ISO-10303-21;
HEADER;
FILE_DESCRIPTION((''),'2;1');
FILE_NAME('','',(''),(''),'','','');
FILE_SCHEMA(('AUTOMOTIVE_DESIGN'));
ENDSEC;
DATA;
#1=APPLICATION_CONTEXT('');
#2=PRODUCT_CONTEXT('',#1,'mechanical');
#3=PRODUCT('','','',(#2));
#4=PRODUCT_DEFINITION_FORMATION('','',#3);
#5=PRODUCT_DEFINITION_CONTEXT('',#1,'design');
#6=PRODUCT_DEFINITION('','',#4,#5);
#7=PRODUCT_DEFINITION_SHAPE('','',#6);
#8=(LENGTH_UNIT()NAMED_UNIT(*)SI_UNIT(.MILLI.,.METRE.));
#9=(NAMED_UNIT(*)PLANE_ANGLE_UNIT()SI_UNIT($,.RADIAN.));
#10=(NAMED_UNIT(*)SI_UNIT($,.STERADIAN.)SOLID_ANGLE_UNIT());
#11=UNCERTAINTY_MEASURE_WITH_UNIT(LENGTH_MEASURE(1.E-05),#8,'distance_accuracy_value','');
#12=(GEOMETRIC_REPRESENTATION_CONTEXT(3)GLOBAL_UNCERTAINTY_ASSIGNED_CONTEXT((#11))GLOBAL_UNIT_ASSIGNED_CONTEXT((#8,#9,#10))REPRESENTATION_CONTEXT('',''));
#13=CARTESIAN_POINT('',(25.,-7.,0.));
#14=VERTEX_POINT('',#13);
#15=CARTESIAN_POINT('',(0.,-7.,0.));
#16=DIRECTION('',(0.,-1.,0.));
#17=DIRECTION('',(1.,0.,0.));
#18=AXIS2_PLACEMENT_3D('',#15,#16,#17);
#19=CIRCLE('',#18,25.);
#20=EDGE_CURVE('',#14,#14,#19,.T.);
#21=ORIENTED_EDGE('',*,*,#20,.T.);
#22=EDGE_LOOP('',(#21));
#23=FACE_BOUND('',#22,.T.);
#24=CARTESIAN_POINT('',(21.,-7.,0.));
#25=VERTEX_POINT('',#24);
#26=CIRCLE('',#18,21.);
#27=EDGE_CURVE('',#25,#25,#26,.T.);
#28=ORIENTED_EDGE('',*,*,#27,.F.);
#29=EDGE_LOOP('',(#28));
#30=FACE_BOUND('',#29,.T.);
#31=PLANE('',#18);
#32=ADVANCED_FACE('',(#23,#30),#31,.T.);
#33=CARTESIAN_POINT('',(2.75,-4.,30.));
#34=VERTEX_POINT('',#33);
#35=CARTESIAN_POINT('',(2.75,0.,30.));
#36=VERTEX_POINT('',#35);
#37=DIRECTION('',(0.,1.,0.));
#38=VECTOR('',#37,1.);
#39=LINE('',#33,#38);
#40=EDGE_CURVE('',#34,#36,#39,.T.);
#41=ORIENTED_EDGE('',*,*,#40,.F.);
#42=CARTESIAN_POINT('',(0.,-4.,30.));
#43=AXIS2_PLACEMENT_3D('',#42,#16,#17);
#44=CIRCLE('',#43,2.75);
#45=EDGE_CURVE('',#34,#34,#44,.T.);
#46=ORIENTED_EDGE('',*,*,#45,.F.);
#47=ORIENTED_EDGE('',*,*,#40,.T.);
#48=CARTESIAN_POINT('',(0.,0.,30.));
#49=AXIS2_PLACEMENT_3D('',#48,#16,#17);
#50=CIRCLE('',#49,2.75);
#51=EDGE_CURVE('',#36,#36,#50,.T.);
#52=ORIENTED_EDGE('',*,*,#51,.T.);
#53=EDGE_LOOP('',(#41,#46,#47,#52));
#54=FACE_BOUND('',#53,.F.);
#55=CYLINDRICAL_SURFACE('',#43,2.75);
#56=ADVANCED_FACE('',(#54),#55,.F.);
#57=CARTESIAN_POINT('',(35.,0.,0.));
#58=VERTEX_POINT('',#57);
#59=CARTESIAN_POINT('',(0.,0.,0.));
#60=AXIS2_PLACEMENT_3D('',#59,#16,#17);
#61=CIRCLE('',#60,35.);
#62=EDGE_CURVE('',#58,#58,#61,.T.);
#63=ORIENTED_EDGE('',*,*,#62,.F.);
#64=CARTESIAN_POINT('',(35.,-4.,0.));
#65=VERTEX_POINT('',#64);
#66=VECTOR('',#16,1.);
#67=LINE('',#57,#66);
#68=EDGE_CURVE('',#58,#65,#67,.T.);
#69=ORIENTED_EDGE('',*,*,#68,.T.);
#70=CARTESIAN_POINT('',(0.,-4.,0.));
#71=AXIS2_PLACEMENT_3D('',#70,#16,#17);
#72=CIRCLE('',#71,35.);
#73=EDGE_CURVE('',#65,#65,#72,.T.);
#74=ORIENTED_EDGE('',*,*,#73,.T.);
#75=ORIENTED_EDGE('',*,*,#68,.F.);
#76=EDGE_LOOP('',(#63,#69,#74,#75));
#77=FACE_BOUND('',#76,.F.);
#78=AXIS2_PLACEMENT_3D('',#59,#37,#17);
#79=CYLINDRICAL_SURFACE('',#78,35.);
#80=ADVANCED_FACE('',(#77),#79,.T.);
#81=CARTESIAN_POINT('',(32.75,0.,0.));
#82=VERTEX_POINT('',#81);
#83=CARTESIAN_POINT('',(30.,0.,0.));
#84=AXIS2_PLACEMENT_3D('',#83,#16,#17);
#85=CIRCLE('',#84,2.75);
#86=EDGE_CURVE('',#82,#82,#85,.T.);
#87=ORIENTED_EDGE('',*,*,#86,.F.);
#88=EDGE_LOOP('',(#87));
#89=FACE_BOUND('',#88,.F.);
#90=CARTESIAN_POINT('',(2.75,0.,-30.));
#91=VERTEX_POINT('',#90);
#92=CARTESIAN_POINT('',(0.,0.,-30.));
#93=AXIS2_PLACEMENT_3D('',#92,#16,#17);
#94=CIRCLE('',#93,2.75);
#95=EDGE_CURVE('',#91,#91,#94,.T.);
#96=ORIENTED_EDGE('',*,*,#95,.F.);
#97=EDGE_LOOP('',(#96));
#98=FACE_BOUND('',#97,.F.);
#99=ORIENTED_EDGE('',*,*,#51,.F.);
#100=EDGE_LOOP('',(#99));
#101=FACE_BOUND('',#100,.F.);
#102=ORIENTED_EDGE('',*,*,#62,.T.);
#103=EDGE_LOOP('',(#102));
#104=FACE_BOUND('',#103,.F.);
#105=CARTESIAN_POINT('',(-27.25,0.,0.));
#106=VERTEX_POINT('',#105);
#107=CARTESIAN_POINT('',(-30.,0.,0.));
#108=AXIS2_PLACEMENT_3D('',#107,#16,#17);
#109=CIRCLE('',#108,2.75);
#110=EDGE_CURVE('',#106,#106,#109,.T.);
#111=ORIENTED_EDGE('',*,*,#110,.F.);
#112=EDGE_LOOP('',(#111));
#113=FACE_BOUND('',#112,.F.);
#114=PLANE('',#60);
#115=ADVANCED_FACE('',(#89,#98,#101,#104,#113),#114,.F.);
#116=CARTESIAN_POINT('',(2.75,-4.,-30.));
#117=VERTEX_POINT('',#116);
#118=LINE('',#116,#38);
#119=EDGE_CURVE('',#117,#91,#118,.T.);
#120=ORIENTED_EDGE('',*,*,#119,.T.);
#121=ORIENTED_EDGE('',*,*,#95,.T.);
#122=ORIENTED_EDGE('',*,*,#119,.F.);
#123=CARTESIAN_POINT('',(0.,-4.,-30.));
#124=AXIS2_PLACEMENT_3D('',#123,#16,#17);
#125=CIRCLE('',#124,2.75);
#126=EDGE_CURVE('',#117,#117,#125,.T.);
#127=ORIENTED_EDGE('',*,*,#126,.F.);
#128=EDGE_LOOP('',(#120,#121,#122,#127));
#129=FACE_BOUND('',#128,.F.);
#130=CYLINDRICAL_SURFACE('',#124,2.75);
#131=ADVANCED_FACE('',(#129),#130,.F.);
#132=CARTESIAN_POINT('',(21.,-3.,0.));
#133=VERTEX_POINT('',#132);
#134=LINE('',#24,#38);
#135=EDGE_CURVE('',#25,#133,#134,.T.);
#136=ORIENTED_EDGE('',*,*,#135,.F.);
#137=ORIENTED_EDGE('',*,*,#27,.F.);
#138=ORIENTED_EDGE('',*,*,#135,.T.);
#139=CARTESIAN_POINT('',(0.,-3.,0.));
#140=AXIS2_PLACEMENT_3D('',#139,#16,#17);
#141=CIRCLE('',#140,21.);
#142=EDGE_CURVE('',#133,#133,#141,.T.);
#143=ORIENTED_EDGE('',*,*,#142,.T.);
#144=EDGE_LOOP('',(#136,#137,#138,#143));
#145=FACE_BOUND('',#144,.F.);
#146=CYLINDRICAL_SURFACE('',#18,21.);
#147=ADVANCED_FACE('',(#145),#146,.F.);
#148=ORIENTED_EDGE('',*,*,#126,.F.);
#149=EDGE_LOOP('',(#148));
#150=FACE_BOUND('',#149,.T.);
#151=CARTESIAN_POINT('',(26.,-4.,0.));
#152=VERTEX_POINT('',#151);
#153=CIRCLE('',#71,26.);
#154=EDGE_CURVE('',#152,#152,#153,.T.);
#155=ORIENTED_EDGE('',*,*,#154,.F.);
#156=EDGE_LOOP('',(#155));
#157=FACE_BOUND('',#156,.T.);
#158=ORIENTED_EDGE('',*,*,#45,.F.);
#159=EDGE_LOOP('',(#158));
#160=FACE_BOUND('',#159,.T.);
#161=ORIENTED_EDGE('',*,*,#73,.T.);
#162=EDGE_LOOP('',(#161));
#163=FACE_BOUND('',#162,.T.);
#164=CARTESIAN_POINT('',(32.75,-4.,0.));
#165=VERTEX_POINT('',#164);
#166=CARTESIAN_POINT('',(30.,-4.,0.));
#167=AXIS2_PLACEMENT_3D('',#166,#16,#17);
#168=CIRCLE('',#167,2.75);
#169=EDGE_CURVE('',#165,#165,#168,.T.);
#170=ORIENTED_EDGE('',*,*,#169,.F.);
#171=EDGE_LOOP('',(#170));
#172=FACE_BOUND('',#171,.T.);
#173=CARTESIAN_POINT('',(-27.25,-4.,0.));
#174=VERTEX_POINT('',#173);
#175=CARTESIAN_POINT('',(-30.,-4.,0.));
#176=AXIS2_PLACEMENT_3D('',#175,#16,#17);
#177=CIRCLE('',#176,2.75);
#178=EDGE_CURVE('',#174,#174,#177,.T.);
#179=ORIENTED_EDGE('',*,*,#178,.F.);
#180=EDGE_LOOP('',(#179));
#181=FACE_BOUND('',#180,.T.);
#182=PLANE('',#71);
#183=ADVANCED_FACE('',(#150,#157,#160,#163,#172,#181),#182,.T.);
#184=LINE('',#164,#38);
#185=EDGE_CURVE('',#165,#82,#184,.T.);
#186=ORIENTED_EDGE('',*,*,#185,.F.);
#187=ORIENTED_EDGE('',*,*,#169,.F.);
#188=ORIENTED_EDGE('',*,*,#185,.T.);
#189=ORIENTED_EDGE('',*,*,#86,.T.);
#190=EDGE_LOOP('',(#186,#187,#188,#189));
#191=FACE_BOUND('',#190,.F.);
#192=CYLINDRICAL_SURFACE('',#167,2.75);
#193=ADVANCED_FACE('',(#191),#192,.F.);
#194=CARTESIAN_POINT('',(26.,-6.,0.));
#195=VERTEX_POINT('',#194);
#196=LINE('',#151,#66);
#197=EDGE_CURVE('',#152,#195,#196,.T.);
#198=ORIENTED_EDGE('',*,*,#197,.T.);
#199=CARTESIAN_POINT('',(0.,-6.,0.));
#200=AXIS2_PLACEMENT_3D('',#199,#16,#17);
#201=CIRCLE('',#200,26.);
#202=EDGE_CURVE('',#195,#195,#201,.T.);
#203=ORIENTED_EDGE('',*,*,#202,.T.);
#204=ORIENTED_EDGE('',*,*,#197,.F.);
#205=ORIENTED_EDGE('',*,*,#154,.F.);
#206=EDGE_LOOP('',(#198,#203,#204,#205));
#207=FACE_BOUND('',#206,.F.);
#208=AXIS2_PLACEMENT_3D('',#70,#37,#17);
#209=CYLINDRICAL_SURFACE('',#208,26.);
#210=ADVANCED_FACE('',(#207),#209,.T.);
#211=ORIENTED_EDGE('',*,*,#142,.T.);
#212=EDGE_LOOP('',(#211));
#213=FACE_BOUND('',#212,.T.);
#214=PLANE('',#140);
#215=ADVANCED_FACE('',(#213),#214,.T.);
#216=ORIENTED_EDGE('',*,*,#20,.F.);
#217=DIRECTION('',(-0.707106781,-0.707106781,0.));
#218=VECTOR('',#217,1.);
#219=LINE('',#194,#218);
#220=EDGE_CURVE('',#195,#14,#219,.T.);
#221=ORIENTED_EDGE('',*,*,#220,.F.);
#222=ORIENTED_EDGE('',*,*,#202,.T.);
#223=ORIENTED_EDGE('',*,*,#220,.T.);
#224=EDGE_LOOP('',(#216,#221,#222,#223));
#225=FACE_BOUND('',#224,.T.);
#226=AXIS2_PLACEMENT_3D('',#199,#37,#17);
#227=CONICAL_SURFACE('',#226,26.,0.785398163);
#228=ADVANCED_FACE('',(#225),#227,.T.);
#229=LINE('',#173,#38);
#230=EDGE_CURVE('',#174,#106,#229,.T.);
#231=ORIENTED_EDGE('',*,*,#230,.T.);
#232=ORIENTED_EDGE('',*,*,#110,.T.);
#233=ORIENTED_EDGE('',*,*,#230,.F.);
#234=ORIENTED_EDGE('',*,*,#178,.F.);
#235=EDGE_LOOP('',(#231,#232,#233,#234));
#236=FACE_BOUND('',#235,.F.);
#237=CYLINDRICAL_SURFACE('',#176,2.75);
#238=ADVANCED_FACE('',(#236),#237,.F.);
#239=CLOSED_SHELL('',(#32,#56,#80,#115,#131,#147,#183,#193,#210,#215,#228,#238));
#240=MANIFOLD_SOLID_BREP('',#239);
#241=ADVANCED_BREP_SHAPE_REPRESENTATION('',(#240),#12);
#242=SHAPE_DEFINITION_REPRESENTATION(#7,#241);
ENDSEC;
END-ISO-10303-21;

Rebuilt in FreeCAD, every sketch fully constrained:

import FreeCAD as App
import Part
import Sketcher
Q = App.Units.Quantity


def edges_at(feature, points):
    """Names of the edges that pass closest to the given points."""
    edges = feature.Shape.Edges
    near = lambda p: min(range(len(edges)), key=lambda i: edges[i].distToShape(Part.Vertex(*p))[0])
    return sorted({f"Edge{near(p) + 1}" for p in points})

doc = App.newDocument("Part")
body = doc.addObject("PartDesign::Body", "Body")

sketch1 = body.newObject("Sketcher::SketchObject", "Sketch")
sketch1.AttachmentSupport = (doc.getObject("XZ_Plane"), [""])
sketch1.MapMode = "FlatFace"
sketch1.addGeometry(Part.Circle(App.Vector(0, 0, 0), App.Vector(0, 0, 1), 35), False)
sketch1.addConstraint(Sketcher.Constraint("Coincident", 0, 3, -1, 1))
sketch1.addConstraint(Sketcher.Constraint("Diameter", 0, Q("70 mm")))
pad1 = body.newObject("PartDesign::Pad", "Pad")
pad1.Profile = sketch1
pad1.Length = 4

sketch2 = body.newObject("Sketcher::SketchObject", "Sketch001")
sketch2.AttachmentSupport = (doc.getObject("XZ_Plane"), [""])
sketch2.MapMode = "FlatFace"
sketch2.AttachmentOffset = App.Placement(App.Vector(0, 0, 4), App.Rotation())
sketch2.addGeometry(Part.Circle(App.Vector(30, 0, 0), App.Vector(0, 0, 1), 2.75), False)
sketch2.addGeometry(Part.Circle(App.Vector(0, 30, 0), App.Vector(0, 0, 1), 2.75), False)
sketch2.addGeometry(Part.Circle(App.Vector(-30, 0, 0), App.Vector(0, 0, 1), 2.75), False)
sketch2.addGeometry(Part.Circle(App.Vector(0, -30, 0), App.Vector(0, 0, 1), 2.75), False)
sketch2.addConstraint(Sketcher.Constraint("Equal", 0, 1))
sketch2.addConstraint(Sketcher.Constraint("Equal", 1, 2))
sketch2.addConstraint(Sketcher.Constraint("Equal", 2, 3))
sketch2.addConstraint(Sketcher.Constraint("Symmetric", 0, 3, 2, 3, -1, 1))
sketch2.addConstraint(Sketcher.Constraint("Symmetric", 1, 3, 3, 3, -1, 1))
sketch2.addConstraint(Sketcher.Constraint("PointOnObject", 0, 3, -1))
sketch2.addConstraint(Sketcher.Constraint("PointOnObject", 1, 3, -2))
sketch2.addConstraint(Sketcher.Constraint("Diameter", 0, Q("5.5 mm")))
sketch2.addConstraint(Sketcher.Constraint("DistanceX", -1, 1, 0, 3, Q("30 mm")))
sketch2.addConstraint(Sketcher.Constraint("DistanceY", -1, 1, 1, 3, Q("30 mm")))
pocket1 = body.newObject("PartDesign::Pocket", "Pocket")
pocket1.Profile = sketch2
pocket1.Type = "ThroughAll"

sketch3 = body.newObject("Sketcher::SketchObject", "Sketch002")
sketch3.AttachmentSupport = (doc.getObject("XZ_Plane"), [""])
sketch3.MapMode = "FlatFace"
sketch3.AttachmentOffset = App.Placement(App.Vector(0, 0, 4), App.Rotation())
sketch3.addGeometry(Part.Circle(App.Vector(0, 0, 0), App.Vector(0, 0, 1), 26), False)
sketch3.addConstraint(Sketcher.Constraint("Coincident", 0, 3, -1, 1))
sketch3.addConstraint(Sketcher.Constraint("Diameter", 0, Q("52 mm")))
pad2 = body.newObject("PartDesign::Pad", "Pad001")
pad2.Profile = sketch3
pad2.Length = 3

sketch4 = body.newObject("Sketcher::SketchObject", "Sketch003")
sketch4.AttachmentSupport = (doc.getObject("XZ_Plane"), [""])
sketch4.MapMode = "FlatFace"
sketch4.AttachmentOffset = App.Placement(App.Vector(0, 0, 7), App.Rotation())
sketch4.addGeometry(Part.Circle(App.Vector(0, 0, 0), App.Vector(0, 0, 1), 21), False)
sketch4.addConstraint(Sketcher.Constraint("Coincident", 0, 3, -1, 1))
sketch4.addConstraint(Sketcher.Constraint("Diameter", 0, Q("42 mm")))
pocket2 = body.newObject("PartDesign::Pocket", "Pocket001")
pocket2.Profile = sketch4
pocket2.Length = 4
doc.recompute()

chamfer = body.newObject("PartDesign::Chamfer", "Chamfer")
chamfer.Base = (pocket2, edges_at(pocket2, [(-26, -7, 0)]))
chamfer.Size = 1

doc.recompute()
